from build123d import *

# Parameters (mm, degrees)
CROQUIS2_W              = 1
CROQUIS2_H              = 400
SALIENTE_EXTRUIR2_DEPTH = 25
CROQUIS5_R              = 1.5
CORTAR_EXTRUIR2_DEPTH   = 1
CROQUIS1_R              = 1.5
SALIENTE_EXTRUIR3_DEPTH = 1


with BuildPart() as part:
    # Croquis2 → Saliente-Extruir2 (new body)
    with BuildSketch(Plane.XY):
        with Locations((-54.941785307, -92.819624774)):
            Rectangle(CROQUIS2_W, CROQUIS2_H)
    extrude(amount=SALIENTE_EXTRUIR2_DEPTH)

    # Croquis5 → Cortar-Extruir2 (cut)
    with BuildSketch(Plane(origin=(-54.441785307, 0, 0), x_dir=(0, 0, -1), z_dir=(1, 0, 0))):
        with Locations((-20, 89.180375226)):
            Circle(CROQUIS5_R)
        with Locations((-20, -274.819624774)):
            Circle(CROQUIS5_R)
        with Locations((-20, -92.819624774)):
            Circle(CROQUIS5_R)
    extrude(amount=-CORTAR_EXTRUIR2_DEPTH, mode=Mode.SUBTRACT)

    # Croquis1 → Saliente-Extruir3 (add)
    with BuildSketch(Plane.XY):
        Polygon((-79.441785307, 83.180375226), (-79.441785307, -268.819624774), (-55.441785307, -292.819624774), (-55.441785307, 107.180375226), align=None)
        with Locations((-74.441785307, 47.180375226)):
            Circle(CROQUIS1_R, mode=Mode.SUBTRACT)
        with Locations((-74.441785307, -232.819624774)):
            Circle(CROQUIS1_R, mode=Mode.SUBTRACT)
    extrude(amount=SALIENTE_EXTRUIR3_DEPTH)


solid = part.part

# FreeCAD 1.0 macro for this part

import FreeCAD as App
import Part
import Sketcher
Q = App.Units.Quantity


def add_polygon(sketch, points):
    """Adds a closed chain of lines whose ends are joined by coincident constraints."""
    first, n = sketch.GeometryCount, len(points)
    for a, b in zip(points, points[1:] + points[:1]):
        sketch.addGeometry(Part.LineSegment(App.Vector(*a, 0), App.Vector(*b, 0)), False)
    for i in range(n):
        sketch.addConstraint(Sketcher.Constraint("Coincident", first + i, 2, first + (i + 1) % n, 1))

doc = App.newDocument("Part")
body = doc.addObject("PartDesign::Body", "Body")

sketch1 = body.newObject("Sketcher::SketchObject", "Sketch")
sketch1.AttachmentSupport = (doc.getObject("XY_Plane"), [""])
sketch1.MapMode = "FlatFace"
add_polygon(sketch1, [(-55.4, 107.2), (-55.4, -292.8), (-54.4, -292.8), (-54.4, 107.2)])
sketch1.addConstraint([
    Sketcher.Constraint("Vertical", 0),
    Sketcher.Constraint("Horizontal", 1),
    Sketcher.Constraint("Vertical", 2),
    Sketcher.Constraint("Horizontal", 3),
    Sketcher.Constraint("DistanceX", 1, 1, 1, 2, Q("1 mm")),
    Sketcher.Constraint("DistanceY", 0, 2, 0, 1, Q("400 mm")),
    Sketcher.Constraint("DistanceX", 0, 2, -1, 1, Q("55.441785 mm")),
    Sketcher.Constraint("DistanceY", 0, 2, -1, 1, Q("292.819625 mm")),
])
pad1 = body.newObject("PartDesign::Pad", "Pad")
pad1.Profile = sketch1
pad1.Length = 25

sketch2 = body.newObject("Sketcher::SketchObject", "Sketch001")
sketch2.AttachmentSupport = (doc.getObject("YZ_Plane"), [""])
sketch2.MapMode = "FlatFace"
sketch2.AttachmentOffset = App.Placement(App.Vector(0, 0, -54.441785), App.Rotation())
sketch2.addGeometry([
    Part.Circle(App.Vector(89.2, 20, 0), App.Vector(0, 0, 1), 1.5),
    Part.Circle(App.Vector(-274.8, 20, 0), App.Vector(0, 0, 1), 1.5),
    Part.Circle(App.Vector(-92.8, 20, 0), App.Vector(0, 0, 1), 1.5),
], False)
sketch2.addConstraint([
    Sketcher.Constraint("Equal", 0, 1),
    Sketcher.Constraint("Equal", 1, 2),
    Sketcher.Constraint("Horizontal", 0, 3, 1, 3),
    Sketcher.Constraint("Horizontal", 1, 3, 2, 3),
    Sketcher.Constraint("Diameter", 0, Q("3 mm")),
    Sketcher.Constraint("DistanceY", -1, 1, 0, 3, Q("20 mm")),
    Sketcher.Constraint("DistanceX", 1, 3, 0, 3, Q("364 mm")),
    Sketcher.Constraint("DistanceX", 1, 3, 2, 3, Q("182 mm")),
    Sketcher.Constraint("DistanceX", -1, 1, 0, 3, Q("89.180375 mm")),
])
pocket1 = body.newObject("PartDesign::Pocket", "Pocket")
pocket1.Profile = sketch2
pocket1.Length = 1

sketch3 = body.newObject("Sketcher::SketchObject", "Sketch002")
sketch3.AttachmentSupport = (doc.getObject("XY_Plane"), [""])
sketch3.MapMode = "FlatFace"
add_polygon(sketch3, [(-79.4, 83.2), (-79.4, -268.8), (-55.4, -292.8), (-55.4, 107.2)])
sketch3.addGeometry(Part.Circle(App.Vector(-74.4, -232.8, 0), App.Vector(0, 0, 1), 1.5), False)
sketch3.addGeometry(Part.Circle(App.Vector(-74.4, 47.2, 0), App.Vector(0, 0, 1), 1.5), False)
sketch3.addConstraint([
    Sketcher.Constraint("Vertical", 0),
    Sketcher.Constraint("Vertical", 2),
    Sketcher.Constraint("Equal", 4, 5),
    Sketcher.Constraint("Perpendicular", 1, 3),
    Sketcher.Constraint("Vertical", 4, 3, 5, 3),
    Sketcher.Constraint("Equal", 1, 3),
    Sketcher.Constraint("Diameter", 4, Q("3 mm")),
    Sketcher.Constraint("DistanceY", 0, 2, 0, 1, Q("352 mm")),
    Sketcher.Constraint("DistanceY", 2, 1, 2, 2, Q("400 mm")),
    Sketcher.Constraint("DistanceY", 4, 3, 5, 3, Q("280 mm")),
    Sketcher.Constraint("DistanceX", 0, 2, 4, 3, Q("5 mm")),
    Sketcher.Constraint("DistanceY", 0, 2, 4, 3, Q("36 mm")),
    Sketcher.Constraint("DistanceX", 4, 3, -1, 1, Q("74.441785 mm")),
    Sketcher.Constraint("DistanceY", 4, 3, -1, 1, Q("232.819625 mm")),
])
pad2 = body.newObject("PartDesign::Pad", "Pad001")
pad2.Profile = sketch3
pad2.Length = 1

doc.recompute()
